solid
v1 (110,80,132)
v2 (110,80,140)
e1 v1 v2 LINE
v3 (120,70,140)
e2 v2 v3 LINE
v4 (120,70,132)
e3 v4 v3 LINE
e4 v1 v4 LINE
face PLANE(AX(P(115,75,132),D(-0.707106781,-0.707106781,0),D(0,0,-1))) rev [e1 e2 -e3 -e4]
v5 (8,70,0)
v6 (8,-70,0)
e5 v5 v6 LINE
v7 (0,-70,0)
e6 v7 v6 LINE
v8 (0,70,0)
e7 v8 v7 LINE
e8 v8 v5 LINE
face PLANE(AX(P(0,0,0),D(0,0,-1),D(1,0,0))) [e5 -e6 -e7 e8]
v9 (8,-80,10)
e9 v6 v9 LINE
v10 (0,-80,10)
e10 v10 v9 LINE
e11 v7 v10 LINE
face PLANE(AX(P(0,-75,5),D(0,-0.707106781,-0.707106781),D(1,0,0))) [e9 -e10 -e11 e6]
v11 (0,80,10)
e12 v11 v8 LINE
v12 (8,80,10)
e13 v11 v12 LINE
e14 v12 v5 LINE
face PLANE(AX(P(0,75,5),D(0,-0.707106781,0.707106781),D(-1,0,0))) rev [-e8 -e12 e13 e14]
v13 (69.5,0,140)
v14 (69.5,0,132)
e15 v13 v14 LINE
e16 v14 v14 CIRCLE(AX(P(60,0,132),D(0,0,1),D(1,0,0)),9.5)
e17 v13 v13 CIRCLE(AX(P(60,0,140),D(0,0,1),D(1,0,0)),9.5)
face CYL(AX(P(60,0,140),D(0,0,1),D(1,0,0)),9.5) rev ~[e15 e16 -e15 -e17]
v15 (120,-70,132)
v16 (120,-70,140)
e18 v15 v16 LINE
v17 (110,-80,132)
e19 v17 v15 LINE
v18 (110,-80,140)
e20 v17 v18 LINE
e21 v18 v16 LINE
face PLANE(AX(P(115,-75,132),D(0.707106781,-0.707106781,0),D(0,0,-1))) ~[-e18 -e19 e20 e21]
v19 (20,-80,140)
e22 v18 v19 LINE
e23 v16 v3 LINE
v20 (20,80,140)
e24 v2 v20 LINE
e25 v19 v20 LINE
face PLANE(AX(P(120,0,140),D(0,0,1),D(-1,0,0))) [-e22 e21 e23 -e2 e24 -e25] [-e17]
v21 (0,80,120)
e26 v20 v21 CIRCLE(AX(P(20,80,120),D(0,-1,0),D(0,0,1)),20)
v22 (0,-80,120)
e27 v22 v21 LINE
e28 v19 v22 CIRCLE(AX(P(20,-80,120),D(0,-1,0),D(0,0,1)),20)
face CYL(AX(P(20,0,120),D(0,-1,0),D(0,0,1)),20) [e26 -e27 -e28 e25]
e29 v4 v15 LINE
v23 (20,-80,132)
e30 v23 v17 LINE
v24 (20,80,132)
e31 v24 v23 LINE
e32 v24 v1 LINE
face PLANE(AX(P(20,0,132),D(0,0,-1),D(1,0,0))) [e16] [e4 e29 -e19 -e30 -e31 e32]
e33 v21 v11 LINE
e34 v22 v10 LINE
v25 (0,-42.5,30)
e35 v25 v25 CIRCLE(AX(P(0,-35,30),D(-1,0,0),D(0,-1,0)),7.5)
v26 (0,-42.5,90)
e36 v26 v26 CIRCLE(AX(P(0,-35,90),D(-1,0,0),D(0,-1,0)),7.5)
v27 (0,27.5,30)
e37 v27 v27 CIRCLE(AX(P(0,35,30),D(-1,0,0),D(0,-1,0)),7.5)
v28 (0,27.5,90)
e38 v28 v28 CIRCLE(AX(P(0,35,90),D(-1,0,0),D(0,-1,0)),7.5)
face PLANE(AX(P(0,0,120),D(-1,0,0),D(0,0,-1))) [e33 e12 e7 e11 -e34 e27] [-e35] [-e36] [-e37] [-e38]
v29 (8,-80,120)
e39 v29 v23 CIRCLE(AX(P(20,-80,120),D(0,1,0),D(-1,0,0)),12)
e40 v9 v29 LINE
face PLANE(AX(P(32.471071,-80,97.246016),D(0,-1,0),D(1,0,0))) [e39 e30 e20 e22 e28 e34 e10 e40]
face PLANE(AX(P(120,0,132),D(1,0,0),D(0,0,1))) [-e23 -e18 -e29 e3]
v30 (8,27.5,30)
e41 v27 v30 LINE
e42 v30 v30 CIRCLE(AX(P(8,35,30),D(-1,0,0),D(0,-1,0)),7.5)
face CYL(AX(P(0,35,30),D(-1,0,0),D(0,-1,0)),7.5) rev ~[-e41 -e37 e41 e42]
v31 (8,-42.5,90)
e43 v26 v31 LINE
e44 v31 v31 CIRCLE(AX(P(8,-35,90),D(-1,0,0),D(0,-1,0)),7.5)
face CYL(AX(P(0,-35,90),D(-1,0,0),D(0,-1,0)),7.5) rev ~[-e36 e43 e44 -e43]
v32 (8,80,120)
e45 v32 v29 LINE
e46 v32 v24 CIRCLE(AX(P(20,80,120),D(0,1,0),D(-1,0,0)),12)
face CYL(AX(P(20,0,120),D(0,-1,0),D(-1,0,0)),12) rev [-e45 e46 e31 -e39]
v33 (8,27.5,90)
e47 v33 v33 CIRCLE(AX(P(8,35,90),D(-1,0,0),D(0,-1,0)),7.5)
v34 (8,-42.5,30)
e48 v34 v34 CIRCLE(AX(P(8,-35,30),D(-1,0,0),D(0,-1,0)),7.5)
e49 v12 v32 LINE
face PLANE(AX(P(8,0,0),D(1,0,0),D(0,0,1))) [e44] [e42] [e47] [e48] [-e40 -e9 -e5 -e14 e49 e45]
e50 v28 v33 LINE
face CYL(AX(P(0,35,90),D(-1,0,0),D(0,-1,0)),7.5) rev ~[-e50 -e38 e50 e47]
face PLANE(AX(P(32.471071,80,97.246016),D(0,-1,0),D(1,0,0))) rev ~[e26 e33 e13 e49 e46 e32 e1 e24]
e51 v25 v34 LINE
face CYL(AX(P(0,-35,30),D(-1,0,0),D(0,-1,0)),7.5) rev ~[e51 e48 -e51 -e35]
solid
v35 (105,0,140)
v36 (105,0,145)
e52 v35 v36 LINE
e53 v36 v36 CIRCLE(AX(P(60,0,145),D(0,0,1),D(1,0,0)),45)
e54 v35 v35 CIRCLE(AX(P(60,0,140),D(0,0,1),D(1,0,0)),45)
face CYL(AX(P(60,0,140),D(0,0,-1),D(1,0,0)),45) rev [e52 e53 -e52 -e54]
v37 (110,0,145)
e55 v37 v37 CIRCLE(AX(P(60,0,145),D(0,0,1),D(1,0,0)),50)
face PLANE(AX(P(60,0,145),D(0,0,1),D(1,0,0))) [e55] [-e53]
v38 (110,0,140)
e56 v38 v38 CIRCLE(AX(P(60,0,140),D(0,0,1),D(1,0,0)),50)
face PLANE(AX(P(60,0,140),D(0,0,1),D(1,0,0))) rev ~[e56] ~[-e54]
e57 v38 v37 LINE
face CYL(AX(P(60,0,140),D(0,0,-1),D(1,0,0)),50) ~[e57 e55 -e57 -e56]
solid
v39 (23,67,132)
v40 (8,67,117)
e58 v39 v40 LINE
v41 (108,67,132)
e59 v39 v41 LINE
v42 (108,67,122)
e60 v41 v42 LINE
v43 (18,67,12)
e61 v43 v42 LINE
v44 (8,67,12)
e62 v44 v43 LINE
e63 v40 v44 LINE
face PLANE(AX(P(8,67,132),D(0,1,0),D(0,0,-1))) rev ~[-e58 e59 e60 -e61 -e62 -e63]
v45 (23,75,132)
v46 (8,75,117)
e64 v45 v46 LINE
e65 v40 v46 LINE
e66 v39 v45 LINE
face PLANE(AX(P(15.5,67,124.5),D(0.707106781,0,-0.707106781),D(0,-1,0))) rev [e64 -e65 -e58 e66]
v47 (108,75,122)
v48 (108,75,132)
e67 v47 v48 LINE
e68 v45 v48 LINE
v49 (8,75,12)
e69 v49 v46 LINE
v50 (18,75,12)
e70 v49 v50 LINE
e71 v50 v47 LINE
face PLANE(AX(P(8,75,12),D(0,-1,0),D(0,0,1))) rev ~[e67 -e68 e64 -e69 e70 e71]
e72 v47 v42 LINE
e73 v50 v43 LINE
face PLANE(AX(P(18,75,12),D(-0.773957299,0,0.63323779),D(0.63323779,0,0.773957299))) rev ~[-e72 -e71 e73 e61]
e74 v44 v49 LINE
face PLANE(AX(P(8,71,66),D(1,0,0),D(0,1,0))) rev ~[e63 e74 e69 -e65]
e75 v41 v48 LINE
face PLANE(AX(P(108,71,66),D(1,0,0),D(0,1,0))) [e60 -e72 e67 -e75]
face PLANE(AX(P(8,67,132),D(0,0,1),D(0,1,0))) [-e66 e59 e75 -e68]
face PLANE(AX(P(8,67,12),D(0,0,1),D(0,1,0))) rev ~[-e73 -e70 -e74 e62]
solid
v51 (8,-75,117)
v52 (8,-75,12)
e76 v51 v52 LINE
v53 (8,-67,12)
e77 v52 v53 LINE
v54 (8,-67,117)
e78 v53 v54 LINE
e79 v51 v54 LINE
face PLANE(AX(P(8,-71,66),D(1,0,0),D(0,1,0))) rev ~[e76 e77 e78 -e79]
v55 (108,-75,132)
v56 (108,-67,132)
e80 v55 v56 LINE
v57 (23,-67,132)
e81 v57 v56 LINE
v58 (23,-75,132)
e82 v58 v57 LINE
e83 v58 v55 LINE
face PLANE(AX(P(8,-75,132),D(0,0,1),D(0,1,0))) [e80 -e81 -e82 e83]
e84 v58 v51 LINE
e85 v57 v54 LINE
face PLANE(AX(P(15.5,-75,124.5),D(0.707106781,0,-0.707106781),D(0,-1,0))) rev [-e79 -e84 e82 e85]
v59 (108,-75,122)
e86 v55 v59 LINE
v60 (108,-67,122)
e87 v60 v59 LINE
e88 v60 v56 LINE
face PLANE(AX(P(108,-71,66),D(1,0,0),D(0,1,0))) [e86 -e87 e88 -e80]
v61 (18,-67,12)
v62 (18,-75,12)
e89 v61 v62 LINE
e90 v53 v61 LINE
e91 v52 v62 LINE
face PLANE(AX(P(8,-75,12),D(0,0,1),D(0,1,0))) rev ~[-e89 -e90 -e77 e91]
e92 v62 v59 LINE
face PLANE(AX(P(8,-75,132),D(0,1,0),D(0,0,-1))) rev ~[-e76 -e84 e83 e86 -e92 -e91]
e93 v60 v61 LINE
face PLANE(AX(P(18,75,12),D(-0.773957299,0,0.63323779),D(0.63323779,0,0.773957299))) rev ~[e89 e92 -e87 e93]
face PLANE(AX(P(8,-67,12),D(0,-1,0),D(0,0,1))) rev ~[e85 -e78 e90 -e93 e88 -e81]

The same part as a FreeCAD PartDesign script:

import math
import FreeCAD as App
import Part
import Sketcher
Q = App.Units.Quantity


def edges_at(feature, points):
    """Names of the edges that pass closest to the given points."""
    edges = feature.Shape.Edges
    near = lambda p: min(range(len(edges)), key=lambda i: edges[i].distToShape(Part.Vertex(*p))[0])
    return sorted({f"Edge{near(p) + 1}" for p in points})


def add_polygon(sketch, points):
    """Adds a closed chain of lines whose ends are joined by coincident constraints."""
    first, n = sketch.GeometryCount, len(points)
    for a, b in zip(points, points[1:] + points[:1]):
        sketch.addGeometry(Part.LineSegment(App.Vector(*a, 0), App.Vector(*b, 0)), False)
    for i in range(n):
        sketch.addConstraint(Sketcher.Constraint("Coincident", first + i, 2, first + (i + 1) % n, 1))

doc = App.newDocument("Part")
body = doc.addObject("PartDesign::Body", "Body")

sketch1 = body.newObject("Sketcher::SketchObject", "Sketch")
sketch1.AttachmentSupport = (doc.getObject("XZ_Plane"), [""])
sketch1.MapMode = "FlatFace"
sketch1.addGeometry(Part.LineSegment(App.Vector(0, 120, 0), App.Vector(0, 0, 0)), False)
sketch1.addGeometry(Part.LineSegment(App.Vector(0, 0, 0), App.Vector(8, 0, 0)), False)
sketch1.addGeometry(Part.LineSegment(App.Vector(8, 0, 0), App.Vector(8, 120, 0)), False)
sketch1.addGeometry(Part.ArcOfCircle(Part.Circle(App.Vector(20, 120, 0), App.Vector(0, 0, 1), 12), math.radians(90), math.radians(180)), False)
sketch1.addGeometry(Part.LineSegment(App.Vector(20, 132, 0), App.Vector(120, 132, 0)), False)
sketch1.addGeometry(Part.LineSegment(App.Vector(120, 132, 0), App.Vector(120, 140, 0)), False)
sketch1.addGeometry(Part.LineSegment(App.Vector(120, 140, 0), App.Vector(20, 140, 0)), False)
sketch1.addGeometry(Part.ArcOfCircle(Part.Circle(App.Vector(20, 120, 0), App.Vector(0, 0, 1), 20), math.radians(90), math.radians(180)), False)
sketch1.addConstraint(Sketcher.Constraint("Coincident", 0, 2, 1, 1))
sketch1.addConstraint(Sketcher.Constraint("Coincident", 1, 2, 2, 1))
sketch1.addConstraint(Sketcher.Constraint("Tangent", 2, 2, 3, 2))
sketch1.addConstraint(Sketcher.Constraint("Tangent", 3, 1, 4, 1))
sketch1.addConstraint(Sketcher.Constraint("Coincident", 4, 2, 5, 1))
sketch1.addConstraint(Sketcher.Constraint("Coincident", 5, 2, 6, 1))
sketch1.addConstraint(Sketcher.Constraint("Tangent", 6, 2, 7, 1))
sketch1.addConstraint(Sketcher.Constraint("Tangent", 7, 2, 0, 1))
sketch1.addConstraint(Sketcher.Constraint("Vertical", 0))
sketch1.addConstraint(Sketcher.Constraint("Horizontal", 1))
sketch1.addConstraint(Sketcher.Constraint("Vertical", 2))
sketch1.addConstraint(Sketcher.Constraint("Horizontal", 4))
sketch1.addConstraint(Sketcher.Constraint("Vertical", 5))
sketch1.addConstraint(Sketcher.Constraint("Horizontal", 6))
sketch1.addConstraint(Sketcher.Constraint("Coincident", 0, 2, -1, 1))
sketch1.addConstraint(Sketcher.Constraint("Coincident", 7, 3, 3, 3))
sketch1.addConstraint(Sketcher.Constraint("Radius", 3, Q("12 mm")))
sketch1.addConstraint(Sketcher.Constraint("Radius", 7, Q("20 mm")))
sketch1.addConstraint(Sketcher.Constraint("DistanceX", 4, 1, 4, 2, Q("100 mm")))
sketch1.addConstraint(Sketcher.Constraint("DistanceY", 0, 2, 0, 1, Q("120 mm")))
pad1 = body.newObject("PartDesign::Pad", "Pad")
pad1.Profile = sketch1
pad1.Length = 160
pad1.Midplane = True

sketch2 = body.newObject("Sketcher::SketchObject", "Sketch001")
sketch2.AttachmentSupport = (doc.getObject("XY_Plane"), [""])
sketch2.MapMode = "FlatFace"
sketch2.AttachmentOffset = App.Placement(App.Vector(0, 0, 140), App.Rotation())
sketch2.addGeometry(Part.Circle(App.Vector(60, 0, 0), App.Vector(0, 0, 1), 10), False)
sketch2.addConstraint(Sketcher.Constraint("PointOnObject", 0, 3, -1))
sketch2.addConstraint(Sketcher.Constraint("Diameter", 0, Q("19 mm")))
sketch2.addConstraint(Sketcher.Constraint("DistanceX", -1, 1, 0, 3, Q("60 mm")))
pocket1 = body.newObject("PartDesign::Pocket", "Pocket")
pocket1.Profile = sketch2
pocket1.Type = "ThroughAll"
doc.recompute()

chamfer = body.newObject("PartDesign::Chamfer", "Chamfer")
chamfer.Base = (pocket1, edges_at(pocket1, [
    (120, -80, 136),
    (4, -80, 0),
    (120, 80, 136),
    (4, 80, 0),
]))
chamfer.Size = 10

sketch3 = body.newObject("Sketcher::SketchObject", "Sketch002")
sketch3.AttachmentSupport = (doc.getObject("YZ_Plane"), [""])
sketch3.MapMode = "FlatFace"
sketch3.addGeometry(Part.Circle(App.Vector(35, 90, 0), App.Vector(0, 0, 1), 8), False)
sketch3.addGeometry(Part.Circle(App.Vector(-35, 90, 0), App.Vector(0, 0, 1), 8), False)
sketch3.addGeometry(Part.Circle(App.Vector(-35, 30, 0), App.Vector(0, 0, 1), 8), False)
sketch3.addGeometry(Part.Circle(App.Vector(35, 30, 0), App.Vector(0, 0, 1), 8), False)
sketch3.addConstraint(Sketcher.Constraint("Equal", 0, 1))
sketch3.addConstraint(Sketcher.Constraint("Equal", 1, 2))
sketch3.addConstraint(Sketcher.Constraint("Equal", 2, 3))
sketch3.addConstraint(Sketcher.Constraint("Symmetric", 0, 3, 1, 3, -2))
sketch3.addConstraint(Sketcher.Constraint("Symmetric", 2, 3, 3, 3, -2))
sketch3.addConstraint(Sketcher.Constraint("Vertical", 1, 3, 2, 3))
sketch3.addConstraint(Sketcher.Constraint("Diameter", 0, Q("15 mm")))
sketch3.addConstraint(Sketcher.Constraint("DistanceX", -1, 1, 0, 3, Q("35 mm")))
sketch3.addConstraint(Sketcher.Constraint("DistanceY", -1, 1, 0, 3, Q("90 mm")))
sketch3.addConstraint(Sketcher.Constraint("DistanceY", -1, 1, 2, 3, Q("30 mm")))
pocket2 = body.newObject("PartDesign::Pocket", "Pocket001")
pocket2.Profile = sketch3
pocket2.Length = 25
pocket2.Reversed = True

sketch4 = body.newObject("Sketcher::SketchObject", "Sketch003")
sketch4.AttachmentSupport = (doc.getObject("YZ_Plane"), [""])
sketch4.MapMode = "FlatFace"
sketch4.addGeometry(Part.Circle(App.Vector(35, 90, 0), App.Vector(0, 0, 1), 8), False)
sketch4.addGeometry(Part.Circle(App.Vector(-35, 90, 0), App.Vector(0, 0, 1), 8), False)
sketch4.addConstraint(Sketcher.Constraint("Equal", 0, 1))
sketch4.addConstraint(Sketcher.Constraint("Symmetric", 0, 3, 1, 3, -2))
sketch4.addConstraint(Sketcher.Constraint("Diameter", 0, Q("15 mm")))
sketch4.addConstraint(Sketcher.Constraint("DistanceX", -1, 1, 0, 3, Q("35 mm")))
sketch4.addConstraint(Sketcher.Constraint("DistanceY", -1, 1, 0, 3, Q("90 mm")))
pocket3 = body.newObject("PartDesign::Pocket", "Pocket002")
pocket3.Profile = sketch4
pocket3.Type = "ThroughAll"
pocket3.Reversed = True
body2 = doc.addObject("PartDesign::Body", "Body001")

sketch5 = body2.newObject("Sketcher::SketchObject", "Sketch004")
sketch5.AttachmentSupport = (doc.getObject("YZ_Plane001"), [""])
sketch5.MapMode = "FlatFace"
sketch5.AttachmentOffset = App.Placement(App.Vector(0, 0, 8), App.Rotation())
add_polygon(sketch5, [(-75, 12), (-67, 12), (-67, 132), (-75, 132)])
sketch5.addConstraint(Sketcher.Constraint("Horizontal", 0))
sketch5.addConstraint(Sketcher.Constraint("Vertical", 1))
sketch5.addConstraint(Sketcher.Constraint("Horizontal", 2))
sketch5.addConstraint(Sketcher.Constraint("Vertical", 3))
sketch5.addConstraint(Sketcher.Constraint("DistanceX", 0, 1, 0, 2, Q("8 mm")))
sketch5.addConstraint(Sketcher.Constraint("DistanceY", 1, 1, 1, 2, Q("120 mm")))
sketch5.addConstraint(Sketcher.Constraint("DistanceX", 0, 2, -1, 1, Q("67 mm")))
sketch5.addConstraint(Sketcher.Constraint("DistanceY", -1, 1, 0, 2, Q("12 mm")))
pad2 = body2.newObject("PartDesign::Pad", "Pad001")
pad2.Profile = sketch5
pad2.Length = 100
doc.recompute()

chamfer2 = body2.newObject("PartDesign::Chamfer", "Chamfer001")
chamfer2.Base = (pad2, edges_at(pad2, [(8, -71, 132)]))
chamfer2.Size = 15
body3 = doc.addObject("PartDesign::Body", "Body002")

sketch6 = body3.newObject("Sketcher::SketchObject", "Sketch005")
sketch6.AttachmentSupport = (doc.getObject("YZ_Plane002"), [""])
sketch6.MapMode = "FlatFace"
sketch6.AttachmentOffset = App.Placement(App.Vector(0, 0, 8), App.Rotation())
add_polygon(sketch6, [(67, 12), (75, 12), (75, 132), (67, 132)])
sketch6.addConstraint(Sketcher.Constraint("Horizontal", 0))
sketch6.addConstraint(Sketcher.Constraint("Vertical", 1))
sketch6.addConstraint(Sketcher.Constraint("Horizontal", 2))
sketch6.addConstraint(Sketcher.Constraint("Vertical", 3))
sketch6.addConstraint(Sketcher.Constraint("DistanceX", 0, 1, 0, 2, Q("8 mm")))
sketch6.addConstraint(Sketcher.Constraint("DistanceY", 1, 1, 1, 2, Q("120 mm")))
sketch6.addConstraint(Sketcher.Constraint("DistanceX", -1, 1, 0, 2, Q("75 mm")))
sketch6.addConstraint(Sketcher.Constraint("DistanceY", -1, 1, 0, 2, Q("12 mm")))
pad3 = body3.newObject("PartDesign::Pad", "Pad002")
pad3.Profile = sketch6
pad3.Length = 100
doc.recompute()

chamfer3 = body3.newObject("PartDesign::Chamfer", "Chamfer002")
chamfer3.Base = (pad3, edges_at(pad3, [(8, 71, 132)]))
chamfer3.Size = 15
body4 = doc.addObject("PartDesign::Body", "Body003")

sketch7 = body4.newObject("Sketcher::SketchObject", "Sketch006")
sketch7.AttachmentSupport = (doc.getObject("XZ_Plane003"), [""])
sketch7.MapMode = "FlatFace"
sketch7.AttachmentOffset = App.Placement(App.Vector(0, 0, -75), App.Rotation())
add_polygon(sketch7, [(18, 12), (108, 122), (108, 12)])
sketch7.addConstraint(Sketcher.Constraint("Vertical", 1))
sketch7.addConstraint(Sketcher.Constraint("Horizontal", 2))
sketch7.addConstraint(Sketcher.Constraint("DistanceX", 2, 2, 2, 1, Q("90 mm")))
sketch7.addConstraint(Sketcher.Constraint("DistanceY", 1, 2, 1, 1, Q("110 mm")))
sketch7.addConstraint(Sketcher.Constraint("DistanceX", -1, 1, 0, 2, Q("108 mm")))
sketch7.addConstraint(Sketcher.Constraint("DistanceY", -1, 1, 0, 2, Q("122 mm")))
pad4 = body4.newObject("PartDesign::Pad", "Pad003")
pad4.Profile = sketch7
pad4.Length = 155.001
doc.recompute()

body5 = doc.addObject("PartDesign::Body", "Body004")
body5.BaseFeature = body4
boolean = body2.newObject("PartDesign::Boolean", "Boolean")
boolean.Type = "Cut"
boolean.addObjects([body5])
doc.recompute()

boolean2 = body3.newObject("PartDesign::Boolean", "Boolean001")
boolean2.Type = "Cut"
boolean2.addObjects([body4])
body6 = doc.addObject("PartDesign::Body", "Body005")

sketch8 = body6.newObject("Sketcher::SketchObject", "Sketch007")
sketch8.AttachmentSupport = (doc.getObject("XY_Plane005"), [""])
sketch8.MapMode = "FlatFace"
sketch8.AttachmentOffset = App.Placement(App.Vector(0, 0, 140), App.Rotation())
sketch8.addGeometry(Part.Circle(App.Vector(60, 0, 0), App.Vector(0, 0, 1), 50), False)
sketch8.addGeometry(Part.Circle(App.Vector(60, 0, 0), App.Vector(0, 0, 1), 45), False)
sketch8.addConstraint(Sketcher.Constraint("Coincident", 1, 3, 0, 3))
sketch8.addConstraint(Sketcher.Constraint("PointOnObject", 0, 3, -1))
sketch8.addConstraint(Sketcher.Constraint("Diameter", 0, Q("100 mm")))
sketch8.addConstraint(Sketcher.Constraint("Diameter", 1, Q("90 mm")))
sketch8.addConstraint(Sketcher.Constraint("DistanceX", -1, 1, 0, 3, Q("60 mm")))
pad5 = body6.newObject("PartDesign::Pad", "Pad004")
pad5.Profile = sketch8
pad5.Length = 5

doc.recompute()
